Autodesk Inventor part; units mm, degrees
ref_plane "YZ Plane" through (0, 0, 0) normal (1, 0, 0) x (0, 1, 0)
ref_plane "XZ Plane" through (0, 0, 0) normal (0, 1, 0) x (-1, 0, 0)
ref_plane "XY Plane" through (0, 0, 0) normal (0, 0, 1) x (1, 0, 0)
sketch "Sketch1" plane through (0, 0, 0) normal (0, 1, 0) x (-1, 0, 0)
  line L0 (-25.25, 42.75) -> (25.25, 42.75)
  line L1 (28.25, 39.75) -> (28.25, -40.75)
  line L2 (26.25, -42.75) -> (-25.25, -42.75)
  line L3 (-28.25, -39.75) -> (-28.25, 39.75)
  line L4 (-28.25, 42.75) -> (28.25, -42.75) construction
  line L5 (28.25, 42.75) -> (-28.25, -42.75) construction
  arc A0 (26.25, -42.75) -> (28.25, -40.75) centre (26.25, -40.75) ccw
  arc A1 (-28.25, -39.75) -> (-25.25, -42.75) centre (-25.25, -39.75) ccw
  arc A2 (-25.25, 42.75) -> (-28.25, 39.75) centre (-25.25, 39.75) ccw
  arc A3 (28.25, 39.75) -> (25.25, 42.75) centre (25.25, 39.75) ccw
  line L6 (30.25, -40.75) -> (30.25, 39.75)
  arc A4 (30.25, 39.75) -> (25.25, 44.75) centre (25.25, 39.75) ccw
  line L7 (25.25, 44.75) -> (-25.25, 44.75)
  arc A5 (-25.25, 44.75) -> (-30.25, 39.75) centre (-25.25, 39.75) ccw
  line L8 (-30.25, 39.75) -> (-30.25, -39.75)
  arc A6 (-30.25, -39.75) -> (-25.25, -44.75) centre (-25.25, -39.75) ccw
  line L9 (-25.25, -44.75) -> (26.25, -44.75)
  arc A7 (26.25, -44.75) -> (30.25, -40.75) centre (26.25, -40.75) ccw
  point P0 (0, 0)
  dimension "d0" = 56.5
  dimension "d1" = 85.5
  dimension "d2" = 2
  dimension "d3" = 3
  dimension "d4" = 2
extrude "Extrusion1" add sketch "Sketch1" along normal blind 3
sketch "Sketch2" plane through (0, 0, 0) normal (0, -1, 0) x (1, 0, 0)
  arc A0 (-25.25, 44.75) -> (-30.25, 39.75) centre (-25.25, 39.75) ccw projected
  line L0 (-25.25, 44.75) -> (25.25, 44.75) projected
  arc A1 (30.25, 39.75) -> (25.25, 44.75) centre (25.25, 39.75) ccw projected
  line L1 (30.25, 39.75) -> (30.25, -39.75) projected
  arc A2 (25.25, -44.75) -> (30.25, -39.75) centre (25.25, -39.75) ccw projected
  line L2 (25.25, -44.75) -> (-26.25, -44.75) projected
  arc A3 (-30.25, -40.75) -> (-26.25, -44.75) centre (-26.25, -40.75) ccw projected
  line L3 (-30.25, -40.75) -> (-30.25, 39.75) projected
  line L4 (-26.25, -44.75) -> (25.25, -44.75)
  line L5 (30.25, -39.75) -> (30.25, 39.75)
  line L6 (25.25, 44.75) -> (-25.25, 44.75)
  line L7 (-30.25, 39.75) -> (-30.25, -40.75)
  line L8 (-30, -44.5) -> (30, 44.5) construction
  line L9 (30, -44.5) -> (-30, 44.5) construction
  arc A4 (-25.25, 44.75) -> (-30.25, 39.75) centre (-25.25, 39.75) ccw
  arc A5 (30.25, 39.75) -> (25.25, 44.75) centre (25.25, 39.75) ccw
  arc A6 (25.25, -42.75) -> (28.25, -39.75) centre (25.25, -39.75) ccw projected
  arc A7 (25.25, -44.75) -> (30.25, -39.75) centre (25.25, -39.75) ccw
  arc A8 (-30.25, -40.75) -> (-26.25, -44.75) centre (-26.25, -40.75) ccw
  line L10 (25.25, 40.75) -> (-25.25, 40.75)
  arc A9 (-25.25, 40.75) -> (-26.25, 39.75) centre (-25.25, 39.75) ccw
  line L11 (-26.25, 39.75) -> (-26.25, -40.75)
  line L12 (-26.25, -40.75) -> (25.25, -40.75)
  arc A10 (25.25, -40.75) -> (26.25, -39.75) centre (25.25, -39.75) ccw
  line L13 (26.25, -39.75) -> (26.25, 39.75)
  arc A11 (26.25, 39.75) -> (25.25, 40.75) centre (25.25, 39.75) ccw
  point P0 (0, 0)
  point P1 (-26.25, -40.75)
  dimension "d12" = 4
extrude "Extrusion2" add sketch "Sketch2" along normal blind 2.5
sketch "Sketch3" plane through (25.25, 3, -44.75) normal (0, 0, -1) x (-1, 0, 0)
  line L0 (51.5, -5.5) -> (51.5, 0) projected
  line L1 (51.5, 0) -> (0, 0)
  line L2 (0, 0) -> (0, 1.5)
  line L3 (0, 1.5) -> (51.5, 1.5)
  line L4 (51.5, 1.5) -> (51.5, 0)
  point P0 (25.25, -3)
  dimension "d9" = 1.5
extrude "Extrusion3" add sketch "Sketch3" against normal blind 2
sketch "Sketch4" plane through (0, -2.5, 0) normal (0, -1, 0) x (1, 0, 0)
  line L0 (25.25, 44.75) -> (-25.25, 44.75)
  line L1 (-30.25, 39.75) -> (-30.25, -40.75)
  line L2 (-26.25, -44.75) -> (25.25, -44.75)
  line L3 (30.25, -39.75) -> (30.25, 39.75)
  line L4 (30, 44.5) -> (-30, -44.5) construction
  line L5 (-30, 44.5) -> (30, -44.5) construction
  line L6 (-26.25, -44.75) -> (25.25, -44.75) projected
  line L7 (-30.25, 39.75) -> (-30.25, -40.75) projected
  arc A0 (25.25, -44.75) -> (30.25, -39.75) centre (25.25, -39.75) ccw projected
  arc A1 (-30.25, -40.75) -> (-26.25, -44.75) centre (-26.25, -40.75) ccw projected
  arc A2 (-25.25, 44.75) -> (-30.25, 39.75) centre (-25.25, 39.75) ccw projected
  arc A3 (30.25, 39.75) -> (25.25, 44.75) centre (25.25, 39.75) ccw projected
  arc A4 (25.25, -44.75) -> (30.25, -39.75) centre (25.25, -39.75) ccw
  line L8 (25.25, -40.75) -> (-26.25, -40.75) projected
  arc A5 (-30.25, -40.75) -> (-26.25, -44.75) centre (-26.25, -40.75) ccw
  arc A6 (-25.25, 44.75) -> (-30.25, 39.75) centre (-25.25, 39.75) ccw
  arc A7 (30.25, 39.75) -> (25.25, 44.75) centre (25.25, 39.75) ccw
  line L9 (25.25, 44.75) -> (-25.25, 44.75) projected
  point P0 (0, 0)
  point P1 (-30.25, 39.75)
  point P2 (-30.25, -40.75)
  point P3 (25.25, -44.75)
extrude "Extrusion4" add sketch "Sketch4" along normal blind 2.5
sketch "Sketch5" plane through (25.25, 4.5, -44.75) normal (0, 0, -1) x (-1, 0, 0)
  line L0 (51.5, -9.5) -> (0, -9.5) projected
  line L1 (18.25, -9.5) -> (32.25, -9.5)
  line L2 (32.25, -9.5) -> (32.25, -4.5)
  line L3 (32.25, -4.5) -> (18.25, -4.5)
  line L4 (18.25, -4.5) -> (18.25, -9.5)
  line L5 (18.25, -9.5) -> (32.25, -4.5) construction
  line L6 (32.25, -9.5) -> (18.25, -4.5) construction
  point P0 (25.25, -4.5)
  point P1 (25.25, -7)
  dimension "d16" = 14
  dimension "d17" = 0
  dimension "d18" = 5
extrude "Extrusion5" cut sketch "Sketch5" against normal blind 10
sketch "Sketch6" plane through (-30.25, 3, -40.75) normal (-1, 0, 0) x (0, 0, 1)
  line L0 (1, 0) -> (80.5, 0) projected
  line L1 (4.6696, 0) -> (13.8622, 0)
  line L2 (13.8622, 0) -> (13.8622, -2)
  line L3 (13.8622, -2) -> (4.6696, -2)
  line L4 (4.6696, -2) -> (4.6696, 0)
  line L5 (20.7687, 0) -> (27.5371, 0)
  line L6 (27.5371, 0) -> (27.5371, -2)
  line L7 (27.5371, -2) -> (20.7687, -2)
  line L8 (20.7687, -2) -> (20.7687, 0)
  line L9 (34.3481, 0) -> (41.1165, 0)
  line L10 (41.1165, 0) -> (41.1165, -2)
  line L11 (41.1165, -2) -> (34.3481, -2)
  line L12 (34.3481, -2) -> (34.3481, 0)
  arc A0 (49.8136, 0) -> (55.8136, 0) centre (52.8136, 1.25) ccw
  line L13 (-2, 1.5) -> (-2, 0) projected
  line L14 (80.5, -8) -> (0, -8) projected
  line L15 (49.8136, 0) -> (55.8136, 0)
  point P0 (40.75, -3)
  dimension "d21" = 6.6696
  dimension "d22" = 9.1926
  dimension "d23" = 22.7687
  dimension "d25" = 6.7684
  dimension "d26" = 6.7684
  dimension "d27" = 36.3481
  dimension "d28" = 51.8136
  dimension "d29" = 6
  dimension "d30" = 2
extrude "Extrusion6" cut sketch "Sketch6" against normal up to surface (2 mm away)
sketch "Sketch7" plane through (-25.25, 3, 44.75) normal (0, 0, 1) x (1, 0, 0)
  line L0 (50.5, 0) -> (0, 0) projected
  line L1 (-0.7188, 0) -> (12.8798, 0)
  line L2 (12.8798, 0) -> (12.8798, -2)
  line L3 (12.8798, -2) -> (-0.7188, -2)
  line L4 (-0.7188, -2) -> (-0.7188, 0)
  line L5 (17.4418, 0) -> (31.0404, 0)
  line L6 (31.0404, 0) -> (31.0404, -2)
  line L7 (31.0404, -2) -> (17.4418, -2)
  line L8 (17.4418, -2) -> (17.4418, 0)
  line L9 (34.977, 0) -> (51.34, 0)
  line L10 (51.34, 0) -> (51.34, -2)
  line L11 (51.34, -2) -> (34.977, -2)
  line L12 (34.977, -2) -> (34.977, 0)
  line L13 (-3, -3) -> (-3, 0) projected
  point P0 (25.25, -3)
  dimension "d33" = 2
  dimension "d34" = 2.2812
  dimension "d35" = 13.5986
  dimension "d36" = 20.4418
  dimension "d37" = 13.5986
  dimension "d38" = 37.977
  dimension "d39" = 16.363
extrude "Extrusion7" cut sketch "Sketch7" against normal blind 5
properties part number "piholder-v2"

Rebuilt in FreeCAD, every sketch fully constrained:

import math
import FreeCAD as App
import Part
import Sketcher
from FreeCAD import Vector
Q = App.Units.Quantity

doc = App.newDocument("Part")
body = doc.addObject("PartDesign::Body", "Body")

# Sketch on XZ plane
sketch1 = body.newObject("Sketcher::SketchObject", "Sketch")
sketch1.AttachmentSupport = (doc.getObject("XZ_Plane"), [""])
sketch1.MapMode = "FlatFace"
sketch1.addGeometry(Part.ArcOfCircle(Part.Circle(Vector(-26.25, -40.75, 0), Vector(0, 0, 1), 4), math.radians(180), math.radians(270)), False)
sketch1.addGeometry(Part.LineSegment(Vector(-30.25, -40.75, 0), Vector(-30.25, 39.75, 0)), False)
sketch1.addGeometry(Part.ArcOfCircle(Part.Circle(Vector(-25.25, 39.75, 0), Vector(0, 0, 1), 5), math.radians(90), math.radians(180)), False)
sketch1.addGeometry(Part.LineSegment(Vector(-25.25, 44.75, 0), Vector(25.25, 44.75, 0)), False)
sketch1.addGeometry(Part.ArcOfCircle(Part.Circle(Vector(25.25, 39.75, 0), Vector(0, 0, 1), 5), math.radians(0), math.radians(90)), False)
sketch1.addGeometry(Part.LineSegment(Vector(30.25, 39.75, 0), Vector(30.25, -39.75, 0)), False)
sketch1.addGeometry(Part.ArcOfCircle(Part.Circle(Vector(25.25, -39.75, 0), Vector(0, 0, 1), 5), math.radians(-90), math.radians(0)), False)
sketch1.addGeometry(Part.LineSegment(Vector(25.25, -44.75, 0), Vector(-26.25, -44.75, 0)), False)
sketch1.addGeometry(Part.ArcOfCircle(Part.Circle(Vector(25.25, 39.75, 0), Vector(0, 0, 1), 3), math.radians(0), math.radians(90)), False)
sketch1.addGeometry(Part.LineSegment(Vector(25.25, 42.75, 0), Vector(-25.25, 42.75, 0)), False)
sketch1.addGeometry(Part.ArcOfCircle(Part.Circle(Vector(-25.25, 39.75, 0), Vector(0, 0, 1), 3), math.radians(90), math.radians(180)), False)
sketch1.addGeometry(Part.LineSegment(Vector(-28.25, 39.75, 0), Vector(-28.25, -40.75, 0)), False)
sketch1.addGeometry(Part.ArcOfCircle(Part.Circle(Vector(-26.25, -40.75, 0), Vector(0, 0, 1), 2), math.radians(180), math.radians(270)), False)
sketch1.addGeometry(Part.LineSegment(Vector(-26.25, -42.75, 0), Vector(25.25, -42.75, 0)), False)
sketch1.addGeometry(Part.ArcOfCircle(Part.Circle(Vector(25.25, -39.75, 0), Vector(0, 0, 1), 3), math.radians(-90), math.radians(0)), False)
sketch1.addGeometry(Part.LineSegment(Vector(28.25, -39.75, 0), Vector(28.25, 39.75, 0)), False)
sketch1.addConstraint(Sketcher.Constraint("Tangent", 0, 1, 1, 1))
sketch1.addConstraint(Sketcher.Constraint("Tangent", 1, 2, 2, 2))
sketch1.addConstraint(Sketcher.Constraint("Tangent", 2, 1, 3, 1))
sketch1.addConstraint(Sketcher.Constraint("Tangent", 3, 2, 4, 2))
sketch1.addConstraint(Sketcher.Constraint("Tangent", 4, 1, 5, 1))
sketch1.addConstraint(Sketcher.Constraint("Tangent", 5, 2, 6, 2))
sketch1.addConstraint(Sketcher.Constraint("Tangent", 6, 1, 7, 1))
sketch1.addConstraint(Sketcher.Constraint("Tangent", 7, 2, 0, 2))
sketch1.addConstraint(Sketcher.Constraint("Tangent", 8, 2, 9, 1))
sketch1.addConstraint(Sketcher.Constraint("Tangent", 9, 2, 10, 1))
sketch1.addConstraint(Sketcher.Constraint("Tangent", 10, 2, 11, 1))
sketch1.addConstraint(Sketcher.Constraint("Tangent", 11, 2, 12, 1))
sketch1.addConstraint(Sketcher.Constraint("Tangent", 12, 2, 13, 1))
sketch1.addConstraint(Sketcher.Constraint("Tangent", 13, 2, 14, 1))
sketch1.addConstraint(Sketcher.Constraint("Tangent", 14, 2, 15, 1))
sketch1.addConstraint(Sketcher.Constraint("Tangent", 15, 2, 8, 1))
sketch1.addConstraint(Sketcher.Constraint("Vertical", 1))
sketch1.addConstraint(Sketcher.Constraint("Horizontal", 3))
sketch1.addConstraint(Sketcher.Constraint("Vertical", 5))
sketch1.addConstraint(Sketcher.Constraint("Horizontal", 7))
sketch1.addConstraint(Sketcher.Constraint("Horizontal", 9))
sketch1.addConstraint(Sketcher.Constraint("Vertical", 11))
sketch1.addConstraint(Sketcher.Constraint("Horizontal", 13))
sketch1.addConstraint(Sketcher.Constraint("Vertical", 15))
sketch1.addConstraint(Sketcher.Constraint("Coincident", 8, 3, 4, 3))
sketch1.addConstraint(Sketcher.Constraint("Coincident", 10, 3, 2, 3))
sketch1.addConstraint(Sketcher.Constraint("Coincident", 12, 3, 0, 3))
sketch1.addConstraint(Sketcher.Constraint("Equal", 2, 4))
sketch1.addConstraint(Sketcher.Constraint("Equal", 4, 6))
sketch1.addConstraint(Sketcher.Constraint("Equal", 10, 14))
sketch1.addConstraint(Sketcher.Constraint("Symmetric", 2, 3, 6, 3, -1, 1))
sketch1.addConstraint(Sketcher.Constraint("Radius", 8, Q("3 mm")))
sketch1.addConstraint(Sketcher.Constraint("Radius", 12, Q("2 mm")))
sketch1.addConstraint(Sketcher.Constraint("Radius", 0, Q("4 mm")))
sketch1.addConstraint(Sketcher.Constraint("DistanceX", 0, 3, 5, 2, Q("56.5 mm")))
sketch1.addConstraint(Sketcher.Constraint("DistanceY", 1, 1, 1, 2, Q("80.5 mm")))
pad1 = body.newObject("PartDesign::Pad", "Pad")
pad1.Profile = sketch1
pad1.Length = 3
pad1.Reversed = True

# Sketch on XZ plane
sketch2 = body.newObject("Sketcher::SketchObject", "Sketch001")
sketch2.AttachmentSupport = (doc.getObject("XZ_Plane"), [""])
sketch2.MapMode = "FlatFace"
sketch2.addGeometry(Part.LineSegment(Vector(25.25, 44.75, 0), Vector(-25.25, 44.75, 0)), False)
sketch2.addGeometry(Part.ArcOfCircle(Part.Circle(Vector(-25.25, 39.75, 0), Vector(0, 0, 1), 5), math.radians(90), math.radians(180)), False)
sketch2.addGeometry(Part.LineSegment(Vector(-30.25, 39.75, 0), Vector(-30.25, -40.75, 0)), False)
sketch2.addGeometry(Part.ArcOfCircle(Part.Circle(Vector(-26.25, -40.75, 0), Vector(0, 0, 1), 4), math.radians(180), math.radians(270)), False)
sketch2.addGeometry(Part.LineSegment(Vector(-26.25, -44.75, 0), Vector(25.25, -44.75, 0)), False)
sketch2.addGeometry(Part.ArcOfCircle(Part.Circle(Vector(25.25, -39.75, 0), Vector(0, 0, 1), 5), math.radians(-90), math.radians(0)), False)
sketch2.addGeometry(Part.LineSegment(Vector(30.25, -39.75, 0), Vector(30.25, 39.75, 0)), False)
sketch2.addGeometry(Part.ArcOfCircle(Part.Circle(Vector(25.25, 39.75, 0), Vector(0, 0, 1), 5), math.radians(0), math.radians(90)), False)
sketch2.addGeometry(Part.LineSegment(Vector(-25.25, 40.75, 0), Vector(25.25, 40.75, 0)), False)
sketch2.addGeometry(Part.ArcOfCircle(Part.Circle(Vector(25.25, 39.75, 0), Vector(0, 0, 1), 1), math.radians(0), math.radians(90)), False)
sketch2.addGeometry(Part.LineSegment(Vector(26.25, 39.75, 0), Vector(26.25, -39.75, 0)), False)
sketch2.addGeometry(Part.ArcOfCircle(Part.Circle(Vector(25.25, -39.75, 0), Vector(0, 0, 1), 1), math.radians(-90), math.radians(0)), False)
sketch2.addGeometry(Part.LineSegment(Vector(25.25, -40.75, 0), Vector(-26.25, -40.75, 0)), False)
sketch2.addGeometry(Part.LineSegment(Vector(-26.25, -40.75, 0), Vector(-26.25, 39.75, 0)), False)
sketch2.addGeometry(Part.ArcOfCircle(Part.Circle(Vector(-25.25, 39.75, 0), Vector(0, 0, 1), 1), math.radians(90), math.radians(180)), False)
sketch2.addConstraint(Sketcher.Constraint("Tangent", 0, 2, 1, 1))
sketch2.addConstraint(Sketcher.Constraint("Tangent", 1, 2, 2, 1))
sketch2.addConstraint(Sketcher.Constraint("Tangent", 2, 2, 3, 1))
sketch2.addConstraint(Sketcher.Constraint("Tangent", 3, 2, 4, 1))
sketch2.addConstraint(Sketcher.Constraint("Tangent", 4, 2, 5, 1))
sketch2.addConstraint(Sketcher.Constraint("Tangent", 5, 2, 6, 1))
sketch2.addConstraint(Sketcher.Constraint("Tangent", 6, 2, 7, 1))
sketch2.addConstraint(Sketcher.Constraint("Tangent", 7, 2, 0, 1))
sketch2.addConstraint(Sketcher.Constraint("Tangent", 8, 2, 9, 2))
sketch2.addConstraint(Sketcher.Constraint("Tangent", 9, 1, 10, 1))
sketch2.addConstraint(Sketcher.Constraint("Tangent", 10, 2, 11, 2))
sketch2.addConstraint(Sketcher.Constraint("Tangent", 11, 1, 12, 1))
sketch2.addConstraint(Sketcher.Constraint("Coincident", 12, 2, 13, 1))
sketch2.addConstraint(Sketcher.Constraint("Tangent", 13, 2, 14, 2))
sketch2.addConstraint(Sketcher.Constraint("Tangent", 14, 1, 8, 1))
sketch2.addConstraint(Sketcher.Constraint("Horizontal", 0))
sketch2.addConstraint(Sketcher.Constraint("Vertical", 2))
sketch2.addConstraint(Sketcher.Constraint("Horizontal", 4))
sketch2.addConstraint(Sketcher.Constraint("Vertical", 6))
sketch2.addConstraint(Sketcher.Constraint("Horizontal", 8))
sketch2.addConstraint(Sketcher.Constraint("Vertical", 10))
sketch2.addConstraint(Sketcher.Constraint("Horizontal", 12))
sketch2.addConstraint(Sketcher.Constraint("Vertical", 13))
sketch2.addConstraint(Sketcher.Constraint("Coincident", 9, 3, 7, 3))
sketch2.addConstraint(Sketcher.Constraint("Coincident", 11, 3, 5, 3))
sketch2.addConstraint(Sketcher.Constraint("Coincident", 14, 3, 1, 3))
sketch2.addConstraint(Sketcher.Constraint("Equal", 1, 5))
sketch2.addConstraint(Sketcher.Constraint("Equal", 5, 7))
sketch2.addConstraint(Sketcher.Constraint("Symmetric", 1, 3, 5, 3, -1, 1))
sketch2.addConstraint(Sketcher.Constraint("Horizontal", 2, 2, 11, 1))
sketch2.addConstraint(Sketcher.Constraint("Radius", 3, Q("4 mm")))
sketch2.addConstraint(Sketcher.Constraint("Radius", 1, Q("5 mm")))
sketch2.addConstraint(Sketcher.Constraint("DistanceX", 0, 2, 0, 1, Q("50.5 mm")))
sketch2.addConstraint(Sketcher.Constraint("DistanceY", 2, 2, 2, 1, Q("80.5 mm")))
pad2 = body.newObject("PartDesign::Pad", "Pad001")
pad2.Profile = sketch2
pad2.Length = 2.5

# Sketch on XY plane
sketch3 = body.newObject("Sketcher::SketchObject", "Sketch002")
sketch3.AttachmentSupport = (doc.getObject("XY_Plane"), [""])
sketch3.MapMode = "FlatFace"
sketch3.AttachmentOffset = App.Placement(Vector(0, 0, -44.75), App.Rotation())
sketch3.addGeometry(Part.LineSegment(Vector(25.25, 3, 0), Vector(-26.25, 3, 0)), False)
sketch3.addGeometry(Part.LineSegment(Vector(-26.25, 3, 0), Vector(-26.25, 4.5, 0)), False)
sketch3.addGeometry(Part.LineSegment(Vector(-26.25, 4.5, 0), Vector(25.25, 4.5, 0)), False)
sketch3.addGeometry(Part.LineSegment(Vector(25.25, 4.5, 0), Vector(25.25, 3, 0)), False)
sketch3.addConstraint(Sketcher.Constraint("Coincident", 0, 2, 1, 1))
sketch3.addConstraint(Sketcher.Constraint("Coincident", 1, 2, 2, 1))
sketch3.addConstraint(Sketcher.Constraint("Coincident", 2, 2, 3, 1))
sketch3.addConstraint(Sketcher.Constraint("Coincident", 3, 2, 0, 1))
sketch3.addConstraint(Sketcher.Constraint("Horizontal", 0))
sketch3.addConstraint(Sketcher.Constraint("Vertical", 1))
sketch3.addConstraint(Sketcher.Constraint("Horizontal", 2))
sketch3.addConstraint(Sketcher.Constraint("Vertical", 3))
sketch3.addConstraint(Sketcher.Constraint("DistanceY", 1, 1, 1, 2, Q("1.5 mm")))
sketch3.addConstraint(Sketcher.Constraint("DistanceX", 0, 2, 0, 1, Q("51.5 mm")))
sketch3.addConstraint(Sketcher.Constraint("DistanceY", -1, 1, 0, 2, Q("3 mm")))
sketch3.addConstraint(Sketcher.Constraint("DistanceX", 0, 2, -1, 1, Q("26.25 mm")))
pad3 = body.newObject("PartDesign::Pad", "Pad002")
pad3.Profile = sketch3
pad3.Length = 2

# Sketch on XZ plane
sketch4 = body.newObject("Sketcher::SketchObject", "Sketch003")
sketch4.AttachmentSupport = (doc.getObject("XZ_Plane"), [""])
sketch4.MapMode = "FlatFace"
sketch4.AttachmentOffset = App.Placement(Vector(0, 0, 2.5), App.Rotation())
sketch4.addGeometry(Part.ArcOfCircle(Part.Circle(Vector(25.25, 39.75, 0), Vector(0, 0, 1), 5), math.radians(0), math.radians(90)), False)
sketch4.addGeometry(Part.LineSegment(Vector(25.25, 44.75, 0), Vector(-25.25, 44.75, 0)), False)
sketch4.addGeometry(Part.ArcOfCircle(Part.Circle(Vector(-25.25, 39.75, 0), Vector(0, 0, 1), 5), math.radians(90), math.radians(180)), False)
sketch4.addGeometry(Part.LineSegment(Vector(-30.25, 39.75, 0), Vector(-30.25, -40.75, 0)), False)
sketch4.addGeometry(Part.ArcOfCircle(Part.Circle(Vector(-26.25, -40.75, 0), Vector(0, 0, 1), 4), math.radians(180), math.radians(270)), False)
sketch4.addGeometry(Part.LineSegment(Vector(-26.25, -44.75, 0), Vector(25.25, -44.75, 0)), False)
sketch4.addGeometry(Part.ArcOfCircle(Part.Circle(Vector(25.25, -39.75, 0), Vector(0, 0, 1), 5), math.radians(-90), math.radians(0)), False)
sketch4.addGeometry(Part.LineSegment(Vector(30.25, -39.75, 0), Vector(30.25, 39.75, 0)), False)
sketch4.addConstraint(Sketcher.Constraint("Tangent", 0, 2, 1, 1))
sketch4.addConstraint(Sketcher.Constraint("Tangent", 1, 2, 2, 1))
sketch4.addConstraint(Sketcher.Constraint("Tangent", 2, 2, 3, 1))
sketch4.addConstraint(Sketcher.Constraint("Tangent", 3, 2, 4, 1))
sketch4.addConstraint(Sketcher.Constraint("Tangent", 4, 2, 5, 1))
sketch4.addConstraint(Sketcher.Constraint("Tangent", 5, 2, 6, 1))
sketch4.addConstraint(Sketcher.Constraint("Tangent", 6, 2, 7, 1))
sketch4.addConstraint(Sketcher.Constraint("Tangent", 7, 2, 0, 1))
sketch4.addConstraint(Sketcher.Constraint("Horizontal", 1))
sketch4.addConstraint(Sketcher.Constraint("Vertical", 3))
sketch4.addConstraint(Sketcher.Constraint("Horizontal", 5))
sketch4.addConstraint(Sketcher.Constraint("Vertical", 7))
sketch4.addConstraint(Sketcher.Constraint("Equal", 0, 2))
sketch4.addConstraint(Sketcher.Constraint("Equal", 2, 6))
sketch4.addConstraint(Sketcher.Constraint("Symmetric", 2, 3, 6, 3, -1, 1))
sketch4.addConstraint(Sketcher.Constraint("Radius", 0, Q("5 mm")))
sketch4.addConstraint(Sketcher.Constraint("Radius", 4, Q("4 mm")))
sketch4.addConstraint(Sketcher.Constraint("DistanceX", 1, 2, 1, 1, Q("50.5 mm")))
sketch4.addConstraint(Sketcher.Constraint("DistanceY", 3, 2, 3, 1, Q("80.5 mm")))
pad4 = body.newObject("PartDesign::Pad", "Pad003")
pad4.Profile = sketch4
pad4.Length = 2.5

# Sketch on XY plane
sketch5 = body.newObject("Sketcher::SketchObject", "Sketch004")
sketch5.AttachmentSupport = (doc.getObject("XY_Plane"), [""])
sketch5.MapMode = "FlatFace"
sketch5.AttachmentOffset = App.Placement(Vector(0, 0, -44.75), App.Rotation())
sketch5.addGeometry(Part.LineSegment(Vector(7, -5, 0), Vector(-7, -5, 0)), False)
sketch5.addGeometry(Part.LineSegment(Vector(-7, -5, 0), Vector(-7, 0, 0)), False)
sketch5.addGeometry(Part.LineSegment(Vector(-7, 0, 0), Vector(7, 0, 0)), False)
sketch5.addGeometry(Part.LineSegment(Vector(7, 0, 0), Vector(7, -5, 0)), False)
sketch5.addConstraint(Sketcher.Constraint("Coincident", 0, 2, 1, 1))
sketch5.addConstraint(Sketcher.Constraint("Coincident", 1, 2, 2, 1))
sketch5.addConstraint(Sketcher.Constraint("Coincident", 2, 2, 3, 1))
sketch5.addConstraint(Sketcher.Constraint("Coincident", 3, 2, 0, 1))
sketch5.addConstraint(Sketcher.Constraint("Horizontal", 0))
sketch5.addConstraint(Sketcher.Constraint("Vertical", 1))
sketch5.addConstraint(Sketcher.Constraint("Horizontal", 2))
sketch5.addConstraint(Sketcher.Constraint("Vertical", 3))
sketch5.addConstraint(Sketcher.Constraint("Symmetric", 1, 2, 2, 2, -1, 1))
sketch5.addConstraint(Sketcher.Constraint("DistanceX", 0, 2, 0, 1, Q("14 mm")))
sketch5.addConstraint(Sketcher.Constraint("DistanceY", 1, 1, 1, 2, Q("5 mm")))
pocket1 = body.newObject("PartDesign::Pocket", "Pocket")
pocket1.Profile = sketch5
pocket1.Length = 10
pocket1.Reversed = True

# Sketch on YZ plane
sketch6 = body.newObject("Sketcher::SketchObject", "Sketch005")
sketch6.AttachmentSupport = (doc.getObject("YZ_Plane"), [""])
sketch6.MapMode = "FlatFace"
sketch6.AttachmentOffset = App.Placement(Vector(0, 0, -30.25), App.Rotation())
sketch6.addGeometry(Part.LineSegment(Vector(3, 15.0636, 0), Vector(3, 9.0636, 0)), False)
sketch6.addGeometry(Part.ArcOfCircle(Part.Circle(Vector(4.25, 12.0636, 0), Vector(0, 0, 1), 3.25), math.radians(112.619865), math.radians(247.380135)), False)
sketch6.addGeometry(Part.LineSegment(Vector(3, 0.3665, 0), Vector(3, -6.4019, 0)), False)
sketch6.addGeometry(Part.LineSegment(Vector(3, -6.4019, 0), Vector(1, -6.4019, 0)), False)
sketch6.addGeometry(Part.LineSegment(Vector(1, -6.4019, 0), Vector(1, 0.3665, 0)), False)
sketch6.addGeometry(Part.LineSegment(Vector(1, 0.3665, 0), Vector(3, 0.3665, 0)), False)
sketch6.addGeometry(Part.LineSegment(Vector(3, -13.2129, 0), Vector(3, -19.9813, 0)), False)
sketch6.addGeometry(Part.LineSegment(Vector(3, -19.9813, 0), Vector(1, -19.9813, 0)), False)
sketch6.addGeometry(Part.LineSegment(Vector(1, -19.9813, 0), Vector(1, -13.2129, 0)), False)
sketch6.addGeometry(Part.LineSegment(Vector(1, -13.2129, 0), Vector(3, -13.2129, 0)), False)
sketch6.addGeometry(Part.LineSegment(Vector(3, -26.8878, 0), Vector(3, -36.0804, 0)), False)
sketch6.addGeometry(Part.LineSegment(Vector(3, -36.0804, 0), Vector(1, -36.0804, 0)), False)
sketch6.addGeometry(Part.LineSegment(Vector(1, -36.0804, 0), Vector(1, -26.8878, 0)), False)
sketch6.addGeometry(Part.LineSegment(Vector(1, -26.8878, 0), Vector(3, -26.8878, 0)), False)
sketch6.addConstraint(Sketcher.Constraint("Coincident", 0, 1, 1, 1))
sketch6.addConstraint(Sketcher.Constraint("Coincident", 1, 2, 0, 2))
sketch6.addConstraint(Sketcher.Constraint("Coincident", 2, 2, 3, 1))
sketch6.addConstraint(Sketcher.Constraint("Coincident", 3, 2, 4, 1))
sketch6.addConstraint(Sketcher.Constraint("Coincident", 4, 2, 5, 1))
sketch6.addConstraint(Sketcher.Constraint("Coincident", 5, 2, 2, 1))
sketch6.addConstraint(Sketcher.Constraint("Coincident", 6, 2, 7, 1))
sketch6.addConstraint(Sketcher.Constraint("Coincident", 7, 2, 8, 1))
sketch6.addConstraint(Sketcher.Constraint("Coincident", 8, 2, 9, 1))
sketch6.addConstraint(Sketcher.Constraint("Coincident", 9, 2, 6, 1))
sketch6.addConstraint(Sketcher.Constraint("Coincident", 10, 2, 11, 1))
sketch6.addConstraint(Sketcher.Constraint("Coincident", 11, 2, 12, 1))
sketch6.addConstraint(Sketcher.Constraint("Coincident", 12, 2, 13, 1))
sketch6.addConstraint(Sketcher.Constraint("Coincident", 13, 2, 10, 1))
sketch6.addConstraint(Sketcher.Constraint("Vertical", 0))
sketch6.addConstraint(Sketcher.Constraint("Vertical", 2))
sketch6.addConstraint(Sketcher.Constraint("Horizontal", 3))
sketch6.addConstraint(Sketcher.Constraint("Vertical", 4))
sketch6.addConstraint(Sketcher.Constraint("Horizontal", 5))
sketch6.addConstraint(Sketcher.Constraint("Vertical", 6))
sketch6.addConstraint(Sketcher.Constraint("Horizontal", 7))
sketch6.addConstraint(Sketcher.Constraint("Vertical", 8))
sketch6.addConstraint(Sketcher.Constraint("Horizontal", 9))
sketch6.addConstraint(Sketcher.Constraint("Vertical", 10))
sketch6.addConstraint(Sketcher.Constraint("Horizontal", 11))
sketch6.addConstraint(Sketcher.Constraint("Vertical", 12))
sketch6.addConstraint(Sketcher.Constraint("Horizontal", 13))
sketch6.addConstraint(Sketcher.Constraint("Vertical", 1, 2, 2, 2))
sketch6.addConstraint(Sketcher.Constraint("Vertical", 5, 2, 6, 2))
sketch6.addConstraint(Sketcher.Constraint("Vertical", 4, 2, 7, 2))
sketch6.addConstraint(Sketcher.Constraint("Vertical", 9, 2, 10, 2))
sketch6.addConstraint(Sketcher.Constraint("Vertical", 8, 2, 11, 2))
sketch6.addConstraint(Sketcher.Constraint("Equal", 4, 6))
sketch6.addConstraint(Sketcher.Constraint("DistanceX", 3, 2, 3, 1, Q("2 mm")))
sketch6.addConstraint(Sketcher.Constraint("DistanceY", 0, 2, 0, 1, Q("6 mm")))
sketch6.addConstraint(Sketcher.Constraint("Radius", 1, Q("3.25 mm")))
sketch6.addConstraint(Sketcher.Constraint("DistanceY", 2, 2, 2, 1, Q("6.7684 mm")))
sketch6.addConstraint(Sketcher.Constraint("DistanceY", 10, 2, 10, 1, Q("9.1926 mm")))
sketch6.addConstraint(Sketcher.Constraint("DistanceX", -1, 1, 0, 1, Q("3 mm")))
sketch6.addConstraint(Sketcher.Constraint("DistanceY", 2, 2, -1, 1, Q("6.402 mm")))
sketch6.addConstraint(Sketcher.Constraint("DistanceY", 8, 2, -1, 1, Q("13.213 mm")))
sketch6.addConstraint(Sketcher.Constraint("DistanceY", 4, 2, 1, 2, Q("8.697 mm")))
sketch6.addConstraint(Sketcher.Constraint("DistanceY", 10, 2, 6, 2, Q("16.099 mm")))
pocket2 = body.newObject("PartDesign::Pocket", "Pocket001")
pocket2.Profile = sketch6
pocket2.Length = 2
pocket2.Reversed = True

# Sketch on XY plane
sketch7 = body.newObject("Sketcher::SketchObject", "Sketch006")
sketch7.AttachmentSupport = (doc.getObject("XY_Plane"), [""])
sketch7.MapMode = "FlatFace"
sketch7.AttachmentOffset = App.Placement(Vector(0, 0, 44.75), App.Rotation())
sketch7.addGeometry(Part.LineSegment(Vector(26.09, 3, 0), Vector(9.727, 3, 0)), False)
sketch7.addGeometry(Part.LineSegment(Vector(9.727, 3, 0), Vector(9.727, 1, 0)), False)
sketch7.addGeometry(Part.LineSegment(Vector(9.727, 1, 0), Vector(26.09, 1, 0)), False)
sketch7.addGeometry(Part.LineSegment(Vector(26.09, 1, 0), Vector(26.09, 3, 0)), False)
sketch7.addGeometry(Part.LineSegment(Vector(-12.3702, 1, 0), Vector(-12.3702, 3, 0)), False)
sketch7.addGeometry(Part.LineSegment(Vector(-12.3702, 3, 0), Vector(-25.9688, 3, 0)), False)
sketch7.addGeometry(Part.LineSegment(Vector(-25.9688, 3, 0), Vector(-25.9688, 1, 0)), False)
sketch7.addGeometry(Part.LineSegment(Vector(-25.9688, 1, 0), Vector(-12.3702, 1, 0)), False)
sketch7.addGeometry(Part.LineSegment(Vector(5.7904, 1, 0), Vector(5.7904, 3, 0)), False)
sketch7.addGeometry(Part.LineSegment(Vector(5.7904, 3, 0), Vector(-7.8082, 3, 0)), False)
sketch7.addGeometry(Part.LineSegment(Vector(-7.8082, 3, 0), Vector(-7.8082, 1, 0)), False)
sketch7.addGeometry(Part.LineSegment(Vector(-7.8082, 1, 0), Vector(5.7904, 1, 0)), False)
sketch7.addConstraint(Sketcher.Constraint("Coincident", 0, 2, 1, 1))
sketch7.addConstraint(Sketcher.Constraint("Coincident", 1, 2, 2, 1))
sketch7.addConstraint(Sketcher.Constraint("Coincident", 2, 2, 3, 1))
sketch7.addConstraint(Sketcher.Constraint("Coincident", 3, 2, 0, 1))
sketch7.addConstraint(Sketcher.Constraint("Coincident", 4, 2, 5, 1))
sketch7.addConstraint(Sketcher.Constraint("Coincident", 5, 2, 6, 1))
sketch7.addConstraint(Sketcher.Constraint("Coincident", 6, 2, 7, 1))
sketch7.addConstraint(Sketcher.Constraint("Coincident", 7, 2, 4, 1))
sketch7.addConstraint(Sketcher.Constraint("Coincident", 8, 2, 9, 1))
sketch7.addConstraint(Sketcher.Constraint("Coincident", 9, 2, 10, 1))
sketch7.addConstraint(Sketcher.Constraint("Coincident", 10, 2, 11, 1))
sketch7.addConstraint(Sketcher.Constraint("Coincident", 11, 2, 8, 1))
sketch7.addConstraint(Sketcher.Constraint("Horizontal", 0))
sketch7.addConstraint(Sketcher.Constraint("Vertical", 1))
sketch7.addConstraint(Sketcher.Constraint("Horizontal", 2))
sketch7.addConstraint(Sketcher.Constraint("Vertical", 3))
sketch7.addConstraint(Sketcher.Constraint("Vertical", 4))
sketch7.addConstraint(Sketcher.Constraint("Horizontal", 5))
sketch7.addConstraint(Sketcher.Constraint("Vertical", 6))
sketch7.addConstraint(Sketcher.Constraint("Horizontal", 7))
sketch7.addConstraint(Sketcher.Constraint("Vertical", 8))
sketch7.addConstraint(Sketcher.Constraint("Horizontal", 9))
sketch7.addConstraint(Sketcher.Constraint("Vertical", 10))
sketch7.addConstraint(Sketcher.Constraint("Horizontal", 11))
sketch7.addConstraint(Sketcher.Constraint("Horizontal", 3, 2, 4, 2))
sketch7.addConstraint(Sketcher.Constraint("Horizontal", 2, 2, 6, 2))
sketch7.addConstraint(Sketcher.Constraint("Horizontal", 5, 2, 8, 2))
sketch7.addConstraint(Sketcher.Constraint("Horizontal", 7, 2, 10, 2))
sketch7.addConstraint(Sketcher.Constraint("Equal", 7, 9))
sketch7.addConstraint(Sketcher.Constraint("DistanceY", 1, 2, 1, 1, Q("2 mm")))
sketch7.addConstraint(Sketcher.Constraint("DistanceX", 0, 2, 0, 1, Q("16.363 mm")))
sketch7.addConstraint(Sketcher.Constraint("DistanceX", 5, 2, 5, 1, Q("13.5986 mm")))
sketch7.addConstraint(Sketcher.Constraint("DistanceY", -1, 1, 0, 2, Q("3 mm")))
sketch7.addConstraint(Sketcher.Constraint("DistanceX", -1, 1, 2, 2, Q("26.09 mm")))
sketch7.addConstraint(Sketcher.Constraint("DistanceX", 4, 2, 9, 2, Q("4.562 mm")))
sketch7.addConstraint(Sketcher.Constraint("DistanceX", 4, 2, -1, 1, Q("12.3702 mm")))
pocket3 = body.newObject("PartDesign::Pocket", "Pocket002")
pocket3.Profile = sketch7
pocket3.Length = 5

doc.recompute()
